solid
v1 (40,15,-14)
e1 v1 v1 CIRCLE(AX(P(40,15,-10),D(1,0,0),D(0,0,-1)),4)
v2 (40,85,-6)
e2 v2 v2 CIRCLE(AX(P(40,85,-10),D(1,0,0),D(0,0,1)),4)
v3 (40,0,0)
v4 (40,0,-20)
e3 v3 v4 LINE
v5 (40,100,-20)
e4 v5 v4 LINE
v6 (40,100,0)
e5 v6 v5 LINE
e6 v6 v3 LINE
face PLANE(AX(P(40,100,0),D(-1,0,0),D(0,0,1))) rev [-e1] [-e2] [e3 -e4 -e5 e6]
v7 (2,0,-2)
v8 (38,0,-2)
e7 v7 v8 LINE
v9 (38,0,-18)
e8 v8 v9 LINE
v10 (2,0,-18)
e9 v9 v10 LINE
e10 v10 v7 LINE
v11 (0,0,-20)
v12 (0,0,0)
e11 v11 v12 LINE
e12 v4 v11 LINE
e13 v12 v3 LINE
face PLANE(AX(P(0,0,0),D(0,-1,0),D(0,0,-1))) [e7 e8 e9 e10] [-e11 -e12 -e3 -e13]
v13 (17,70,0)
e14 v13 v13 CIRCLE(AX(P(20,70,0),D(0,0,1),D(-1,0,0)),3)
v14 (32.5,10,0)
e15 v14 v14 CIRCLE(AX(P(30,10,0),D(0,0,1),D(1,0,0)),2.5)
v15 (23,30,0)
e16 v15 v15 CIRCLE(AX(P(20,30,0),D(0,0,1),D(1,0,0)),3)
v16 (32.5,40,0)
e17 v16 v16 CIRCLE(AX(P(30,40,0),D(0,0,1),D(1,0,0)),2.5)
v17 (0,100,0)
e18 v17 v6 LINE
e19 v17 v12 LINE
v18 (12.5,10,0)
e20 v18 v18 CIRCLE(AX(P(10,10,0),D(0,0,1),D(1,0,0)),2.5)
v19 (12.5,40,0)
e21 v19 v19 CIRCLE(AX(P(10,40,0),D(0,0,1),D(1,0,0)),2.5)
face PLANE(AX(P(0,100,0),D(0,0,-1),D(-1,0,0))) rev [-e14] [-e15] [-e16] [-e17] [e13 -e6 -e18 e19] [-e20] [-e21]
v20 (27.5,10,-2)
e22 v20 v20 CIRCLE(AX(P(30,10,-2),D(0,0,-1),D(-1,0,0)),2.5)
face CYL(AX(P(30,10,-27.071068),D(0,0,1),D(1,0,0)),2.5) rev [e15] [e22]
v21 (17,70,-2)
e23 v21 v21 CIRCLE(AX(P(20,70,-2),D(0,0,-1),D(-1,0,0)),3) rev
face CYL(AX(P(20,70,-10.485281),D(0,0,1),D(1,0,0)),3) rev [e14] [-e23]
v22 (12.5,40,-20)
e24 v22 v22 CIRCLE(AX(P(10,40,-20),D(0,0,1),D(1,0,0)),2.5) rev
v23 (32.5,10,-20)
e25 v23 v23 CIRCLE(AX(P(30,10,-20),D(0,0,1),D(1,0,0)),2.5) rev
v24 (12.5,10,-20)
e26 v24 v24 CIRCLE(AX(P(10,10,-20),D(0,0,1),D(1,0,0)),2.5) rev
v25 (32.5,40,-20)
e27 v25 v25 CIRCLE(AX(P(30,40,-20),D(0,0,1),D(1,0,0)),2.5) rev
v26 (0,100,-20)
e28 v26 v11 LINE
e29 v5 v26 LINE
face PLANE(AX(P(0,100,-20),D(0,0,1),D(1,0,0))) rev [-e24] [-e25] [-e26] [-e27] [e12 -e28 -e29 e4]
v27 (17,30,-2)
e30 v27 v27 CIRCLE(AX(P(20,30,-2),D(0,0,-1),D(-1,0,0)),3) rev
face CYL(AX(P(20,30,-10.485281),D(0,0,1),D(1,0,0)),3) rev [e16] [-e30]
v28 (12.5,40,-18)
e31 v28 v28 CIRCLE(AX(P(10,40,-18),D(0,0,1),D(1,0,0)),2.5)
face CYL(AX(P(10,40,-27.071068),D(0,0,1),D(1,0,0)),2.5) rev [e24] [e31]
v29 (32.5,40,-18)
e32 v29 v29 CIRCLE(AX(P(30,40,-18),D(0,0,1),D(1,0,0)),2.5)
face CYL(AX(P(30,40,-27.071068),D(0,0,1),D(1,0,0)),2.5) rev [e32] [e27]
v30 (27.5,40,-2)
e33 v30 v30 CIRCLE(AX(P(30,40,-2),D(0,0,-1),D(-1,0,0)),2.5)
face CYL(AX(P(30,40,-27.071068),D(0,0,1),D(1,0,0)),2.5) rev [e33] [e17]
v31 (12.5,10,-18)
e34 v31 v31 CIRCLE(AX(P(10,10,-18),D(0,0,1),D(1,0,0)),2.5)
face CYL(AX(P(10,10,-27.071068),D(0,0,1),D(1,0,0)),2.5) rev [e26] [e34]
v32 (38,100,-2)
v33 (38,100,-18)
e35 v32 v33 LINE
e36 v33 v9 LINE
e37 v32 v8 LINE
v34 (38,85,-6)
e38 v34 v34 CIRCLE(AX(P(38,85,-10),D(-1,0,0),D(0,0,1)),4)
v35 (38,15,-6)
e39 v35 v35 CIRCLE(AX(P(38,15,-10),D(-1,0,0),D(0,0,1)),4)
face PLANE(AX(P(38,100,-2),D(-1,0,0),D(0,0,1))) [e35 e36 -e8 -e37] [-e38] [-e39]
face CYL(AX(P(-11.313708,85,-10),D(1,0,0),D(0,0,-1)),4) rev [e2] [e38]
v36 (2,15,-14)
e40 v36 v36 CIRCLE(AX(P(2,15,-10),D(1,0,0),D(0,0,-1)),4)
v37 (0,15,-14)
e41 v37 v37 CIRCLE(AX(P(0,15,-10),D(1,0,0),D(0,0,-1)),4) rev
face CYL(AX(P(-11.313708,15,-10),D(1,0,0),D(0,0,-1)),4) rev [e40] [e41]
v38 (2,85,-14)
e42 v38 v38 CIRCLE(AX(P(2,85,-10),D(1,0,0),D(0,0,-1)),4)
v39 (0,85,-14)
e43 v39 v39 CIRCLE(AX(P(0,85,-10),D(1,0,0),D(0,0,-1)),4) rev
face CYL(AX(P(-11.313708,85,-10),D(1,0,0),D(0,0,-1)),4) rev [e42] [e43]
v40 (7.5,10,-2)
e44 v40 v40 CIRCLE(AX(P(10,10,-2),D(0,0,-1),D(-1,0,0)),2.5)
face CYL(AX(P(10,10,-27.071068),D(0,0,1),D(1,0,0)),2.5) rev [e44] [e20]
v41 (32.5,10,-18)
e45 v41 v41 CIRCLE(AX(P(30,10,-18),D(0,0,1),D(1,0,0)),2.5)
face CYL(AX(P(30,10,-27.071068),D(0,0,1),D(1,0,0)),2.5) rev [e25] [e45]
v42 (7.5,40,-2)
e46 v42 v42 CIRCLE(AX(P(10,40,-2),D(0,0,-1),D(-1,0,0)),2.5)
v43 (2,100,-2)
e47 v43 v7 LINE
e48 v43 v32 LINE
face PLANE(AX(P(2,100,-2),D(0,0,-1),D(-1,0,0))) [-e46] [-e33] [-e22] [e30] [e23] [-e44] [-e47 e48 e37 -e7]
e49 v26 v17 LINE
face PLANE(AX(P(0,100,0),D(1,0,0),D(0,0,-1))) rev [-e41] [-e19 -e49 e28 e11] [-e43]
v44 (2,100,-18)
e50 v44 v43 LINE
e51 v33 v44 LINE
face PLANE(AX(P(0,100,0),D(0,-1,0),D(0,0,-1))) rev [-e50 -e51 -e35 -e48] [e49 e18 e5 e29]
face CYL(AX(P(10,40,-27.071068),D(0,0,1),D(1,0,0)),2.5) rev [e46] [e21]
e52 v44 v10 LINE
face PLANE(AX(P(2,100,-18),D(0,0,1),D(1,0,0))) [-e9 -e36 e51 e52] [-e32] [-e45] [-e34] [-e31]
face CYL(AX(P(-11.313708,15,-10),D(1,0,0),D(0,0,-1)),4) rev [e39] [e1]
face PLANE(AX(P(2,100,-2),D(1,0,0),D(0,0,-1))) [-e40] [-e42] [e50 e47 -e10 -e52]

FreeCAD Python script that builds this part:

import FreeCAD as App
import Part
import Sketcher
Q = App.Units.Quantity


def add_polygon(sketch, points):
    """Adds a closed chain of lines whose ends are joined by coincident constraints."""
    first, n = sketch.GeometryCount, len(points)
    for a, b in zip(points, points[1:] + points[:1]):
        sketch.addGeometry(Part.LineSegment(App.Vector(*a, 0), App.Vector(*b, 0)), False)
    for i in range(n):
        sketch.addConstraint(Sketcher.Constraint("Coincident", first + i, 2, first + (i + 1) % n, 1))

doc = App.newDocument("Part")
body = doc.addObject("PartDesign::Body", "Body")

# Sketch on XZ plane
sketch1 = doc.addObject("Sketcher::SketchObject", "Sketch")
body.addObject(sketch1)
sketch1.AttachmentSupport = (doc.XZ_Plane, [""])
sketch1.MapMode = "FlatFace"
add_polygon(sketch1, [(0, -20), (0, 0), (40, 0), (40, -20)])  # lines 0-3
add_polygon(sketch1, [(38, -2), (2, -2), (2, -18), (38, -18)])  # lines 4-7
sketch1.addConstraint([
    Sketcher.Constraint("Vertical", 0),
    Sketcher.Constraint("Horizontal", 1),
    Sketcher.Constraint("Vertical", 2),
    Sketcher.Constraint("Horizontal", 3),
    Sketcher.Constraint("Horizontal", 4),
    Sketcher.Constraint("Vertical", 5),
    Sketcher.Constraint("Horizontal", 6),
    Sketcher.Constraint("Vertical", 7),
    Sketcher.Constraint("Coincident", 0, 2, -1, 1),
    Sketcher.Constraint("DistanceX", 1, 1, 1, 2, Q("40 mm")),
    Sketcher.Constraint("DistanceX", 4, 2, 4, 1, Q("36 mm")),
    Sketcher.Constraint("DistanceY", 0, 1, 0, 2, Q("20 mm")),
    Sketcher.Constraint("DistanceY", 5, 2, 5, 1, Q("16 mm")),
    Sketcher.Constraint("DistanceX", -1, 1, 4, 2, Q("2 mm")),
    Sketcher.Constraint("DistanceY", 4, 2, -1, 1, Q("2 mm")),
])
pad1 = doc.addObject("PartDesign::Pad", "Pad")
body.addObject(pad1)
pad1.Profile = sketch1
pad1.Length = 100
pad1.Reversed = True

# Sketch on YZ plane
sketch2 = doc.addObject("Sketcher::SketchObject", "Sketch001")
body.addObject(sketch2)
sketch2.AttachmentSupport = (doc.YZ_Plane, [""])
sketch2.MapMode = "FlatFace"
sketch2.AttachmentOffset = App.Placement(App.Vector(0, 0, 40), App.Rotation())
sketch2.addGeometry([
    Part.Circle(App.Vector(85, -10, 0), App.Vector(0, 0, 1), 4),
    Part.Circle(App.Vector(15, -10, 0), App.Vector(0, 0, 1), 4),
], False)
sketch2.addConstraint([
    Sketcher.Constraint("Equal", 0, 1),
    Sketcher.Constraint("Horizontal", 0, 3, 1, 3),
    Sketcher.Constraint("Diameter", 0, Q("8 mm")),
    Sketcher.Constraint("DistanceX", -1, 1, 0, 3, Q("85 mm")),
    Sketcher.Constraint("DistanceY", 0, 3, -1, 1, Q("10 mm")),
    Sketcher.Constraint("DistanceX", -1, 1, 1, 3, Q("15 mm")),
])
pocket1 = doc.addObject("PartDesign::Pocket", "Pocket")
body.addObject(pocket1)
pocket1.Profile = sketch2
pocket1.Length = 40

# Sketch on XY plane
sketch3 = doc.addObject("Sketcher::SketchObject", "Sketch002")
body.addObject(sketch3)
sketch3.AttachmentSupport = (doc.XY_Plane, [""])
sketch3.MapMode = "FlatFace"
sketch3.addGeometry([
    Part.Circle(App.Vector(10, 10, 0), App.Vector(0, 0, 1), 2.5),
    Part.Circle(App.Vector(30, 10, 0), App.Vector(0, 0, 1), 2.5),
    Part.Circle(App.Vector(30, 40, 0), App.Vector(0, 0, 1), 2.5),
    Part.Circle(App.Vector(10, 40, 0), App.Vector(0, 0, 1), 2.5),
], False)
sketch3.addConstraint([
    Sketcher.Constraint("Equal", 0, 1),
    Sketcher.Constraint("Equal", 1, 2),
    Sketcher.Constraint("Equal", 2, 3),
    Sketcher.Constraint("Horizontal", 0, 3, 1, 3),
    Sketcher.Constraint("Horizontal", 2, 3, 3, 3),
    Sketcher.Constraint("Vertical", 1, 3, 2, 3),
    Sketcher.Constraint("Vertical", 0, 3, 3, 3),
    Sketcher.Constraint("Diameter", 0, Q("5 mm")),
    Sketcher.Constraint("DistanceX", -1, 1, 0, 3, Q("10 mm")),
    Sketcher.Constraint("DistanceY", -1, 1, 0, 3, Q("10 mm")),
    Sketcher.Constraint("DistanceX", -1, 1, 1, 3, Q("30 mm")),
    Sketcher.Constraint("DistanceY", -1, 1, 2, 3, Q("40 mm")),
])
pocket2 = doc.addObject("PartDesign::Pocket", "Pocket001")
body.addObject(pocket2)
pocket2.Profile = sketch3
pocket2.Length = 20

# Sketch on XY plane
sketch4 = doc.addObject("Sketcher::SketchObject", "Sketch003")
body.addObject(sketch4)
sketch4.AttachmentSupport = (doc.XY_Plane, [""])
sketch4.MapMode = "FlatFace"
sketch4.addGeometry([
    Part.Circle(App.Vector(20, 30, 0), App.Vector(0, 0, 1), 3),
    Part.Circle(App.Vector(20, 70, 0), App.Vector(0, 0, 1), 3),
], False)
sketch4.addConstraint([
    Sketcher.Constraint("Equal", 0, 1),
    Sketcher.Constraint("Vertical", 0, 3, 1, 3),
    Sketcher.Constraint("Diameter", 0, Q("6 mm")),
    Sketcher.Constraint("DistanceX", -1, 1, 0, 3, Q("20 mm")),
    Sketcher.Constraint("DistanceY", -1, 1, 0, 3, Q("30 mm")),
    Sketcher.Constraint("DistanceY", -1, 1, 1, 3, Q("70 mm")),
])
pocket3 = doc.addObject("PartDesign::Pocket", "Pocket002")
body.addObject(pocket3)
pocket3.Profile = sketch4
pocket3.Length = 2

doc.recompute()
